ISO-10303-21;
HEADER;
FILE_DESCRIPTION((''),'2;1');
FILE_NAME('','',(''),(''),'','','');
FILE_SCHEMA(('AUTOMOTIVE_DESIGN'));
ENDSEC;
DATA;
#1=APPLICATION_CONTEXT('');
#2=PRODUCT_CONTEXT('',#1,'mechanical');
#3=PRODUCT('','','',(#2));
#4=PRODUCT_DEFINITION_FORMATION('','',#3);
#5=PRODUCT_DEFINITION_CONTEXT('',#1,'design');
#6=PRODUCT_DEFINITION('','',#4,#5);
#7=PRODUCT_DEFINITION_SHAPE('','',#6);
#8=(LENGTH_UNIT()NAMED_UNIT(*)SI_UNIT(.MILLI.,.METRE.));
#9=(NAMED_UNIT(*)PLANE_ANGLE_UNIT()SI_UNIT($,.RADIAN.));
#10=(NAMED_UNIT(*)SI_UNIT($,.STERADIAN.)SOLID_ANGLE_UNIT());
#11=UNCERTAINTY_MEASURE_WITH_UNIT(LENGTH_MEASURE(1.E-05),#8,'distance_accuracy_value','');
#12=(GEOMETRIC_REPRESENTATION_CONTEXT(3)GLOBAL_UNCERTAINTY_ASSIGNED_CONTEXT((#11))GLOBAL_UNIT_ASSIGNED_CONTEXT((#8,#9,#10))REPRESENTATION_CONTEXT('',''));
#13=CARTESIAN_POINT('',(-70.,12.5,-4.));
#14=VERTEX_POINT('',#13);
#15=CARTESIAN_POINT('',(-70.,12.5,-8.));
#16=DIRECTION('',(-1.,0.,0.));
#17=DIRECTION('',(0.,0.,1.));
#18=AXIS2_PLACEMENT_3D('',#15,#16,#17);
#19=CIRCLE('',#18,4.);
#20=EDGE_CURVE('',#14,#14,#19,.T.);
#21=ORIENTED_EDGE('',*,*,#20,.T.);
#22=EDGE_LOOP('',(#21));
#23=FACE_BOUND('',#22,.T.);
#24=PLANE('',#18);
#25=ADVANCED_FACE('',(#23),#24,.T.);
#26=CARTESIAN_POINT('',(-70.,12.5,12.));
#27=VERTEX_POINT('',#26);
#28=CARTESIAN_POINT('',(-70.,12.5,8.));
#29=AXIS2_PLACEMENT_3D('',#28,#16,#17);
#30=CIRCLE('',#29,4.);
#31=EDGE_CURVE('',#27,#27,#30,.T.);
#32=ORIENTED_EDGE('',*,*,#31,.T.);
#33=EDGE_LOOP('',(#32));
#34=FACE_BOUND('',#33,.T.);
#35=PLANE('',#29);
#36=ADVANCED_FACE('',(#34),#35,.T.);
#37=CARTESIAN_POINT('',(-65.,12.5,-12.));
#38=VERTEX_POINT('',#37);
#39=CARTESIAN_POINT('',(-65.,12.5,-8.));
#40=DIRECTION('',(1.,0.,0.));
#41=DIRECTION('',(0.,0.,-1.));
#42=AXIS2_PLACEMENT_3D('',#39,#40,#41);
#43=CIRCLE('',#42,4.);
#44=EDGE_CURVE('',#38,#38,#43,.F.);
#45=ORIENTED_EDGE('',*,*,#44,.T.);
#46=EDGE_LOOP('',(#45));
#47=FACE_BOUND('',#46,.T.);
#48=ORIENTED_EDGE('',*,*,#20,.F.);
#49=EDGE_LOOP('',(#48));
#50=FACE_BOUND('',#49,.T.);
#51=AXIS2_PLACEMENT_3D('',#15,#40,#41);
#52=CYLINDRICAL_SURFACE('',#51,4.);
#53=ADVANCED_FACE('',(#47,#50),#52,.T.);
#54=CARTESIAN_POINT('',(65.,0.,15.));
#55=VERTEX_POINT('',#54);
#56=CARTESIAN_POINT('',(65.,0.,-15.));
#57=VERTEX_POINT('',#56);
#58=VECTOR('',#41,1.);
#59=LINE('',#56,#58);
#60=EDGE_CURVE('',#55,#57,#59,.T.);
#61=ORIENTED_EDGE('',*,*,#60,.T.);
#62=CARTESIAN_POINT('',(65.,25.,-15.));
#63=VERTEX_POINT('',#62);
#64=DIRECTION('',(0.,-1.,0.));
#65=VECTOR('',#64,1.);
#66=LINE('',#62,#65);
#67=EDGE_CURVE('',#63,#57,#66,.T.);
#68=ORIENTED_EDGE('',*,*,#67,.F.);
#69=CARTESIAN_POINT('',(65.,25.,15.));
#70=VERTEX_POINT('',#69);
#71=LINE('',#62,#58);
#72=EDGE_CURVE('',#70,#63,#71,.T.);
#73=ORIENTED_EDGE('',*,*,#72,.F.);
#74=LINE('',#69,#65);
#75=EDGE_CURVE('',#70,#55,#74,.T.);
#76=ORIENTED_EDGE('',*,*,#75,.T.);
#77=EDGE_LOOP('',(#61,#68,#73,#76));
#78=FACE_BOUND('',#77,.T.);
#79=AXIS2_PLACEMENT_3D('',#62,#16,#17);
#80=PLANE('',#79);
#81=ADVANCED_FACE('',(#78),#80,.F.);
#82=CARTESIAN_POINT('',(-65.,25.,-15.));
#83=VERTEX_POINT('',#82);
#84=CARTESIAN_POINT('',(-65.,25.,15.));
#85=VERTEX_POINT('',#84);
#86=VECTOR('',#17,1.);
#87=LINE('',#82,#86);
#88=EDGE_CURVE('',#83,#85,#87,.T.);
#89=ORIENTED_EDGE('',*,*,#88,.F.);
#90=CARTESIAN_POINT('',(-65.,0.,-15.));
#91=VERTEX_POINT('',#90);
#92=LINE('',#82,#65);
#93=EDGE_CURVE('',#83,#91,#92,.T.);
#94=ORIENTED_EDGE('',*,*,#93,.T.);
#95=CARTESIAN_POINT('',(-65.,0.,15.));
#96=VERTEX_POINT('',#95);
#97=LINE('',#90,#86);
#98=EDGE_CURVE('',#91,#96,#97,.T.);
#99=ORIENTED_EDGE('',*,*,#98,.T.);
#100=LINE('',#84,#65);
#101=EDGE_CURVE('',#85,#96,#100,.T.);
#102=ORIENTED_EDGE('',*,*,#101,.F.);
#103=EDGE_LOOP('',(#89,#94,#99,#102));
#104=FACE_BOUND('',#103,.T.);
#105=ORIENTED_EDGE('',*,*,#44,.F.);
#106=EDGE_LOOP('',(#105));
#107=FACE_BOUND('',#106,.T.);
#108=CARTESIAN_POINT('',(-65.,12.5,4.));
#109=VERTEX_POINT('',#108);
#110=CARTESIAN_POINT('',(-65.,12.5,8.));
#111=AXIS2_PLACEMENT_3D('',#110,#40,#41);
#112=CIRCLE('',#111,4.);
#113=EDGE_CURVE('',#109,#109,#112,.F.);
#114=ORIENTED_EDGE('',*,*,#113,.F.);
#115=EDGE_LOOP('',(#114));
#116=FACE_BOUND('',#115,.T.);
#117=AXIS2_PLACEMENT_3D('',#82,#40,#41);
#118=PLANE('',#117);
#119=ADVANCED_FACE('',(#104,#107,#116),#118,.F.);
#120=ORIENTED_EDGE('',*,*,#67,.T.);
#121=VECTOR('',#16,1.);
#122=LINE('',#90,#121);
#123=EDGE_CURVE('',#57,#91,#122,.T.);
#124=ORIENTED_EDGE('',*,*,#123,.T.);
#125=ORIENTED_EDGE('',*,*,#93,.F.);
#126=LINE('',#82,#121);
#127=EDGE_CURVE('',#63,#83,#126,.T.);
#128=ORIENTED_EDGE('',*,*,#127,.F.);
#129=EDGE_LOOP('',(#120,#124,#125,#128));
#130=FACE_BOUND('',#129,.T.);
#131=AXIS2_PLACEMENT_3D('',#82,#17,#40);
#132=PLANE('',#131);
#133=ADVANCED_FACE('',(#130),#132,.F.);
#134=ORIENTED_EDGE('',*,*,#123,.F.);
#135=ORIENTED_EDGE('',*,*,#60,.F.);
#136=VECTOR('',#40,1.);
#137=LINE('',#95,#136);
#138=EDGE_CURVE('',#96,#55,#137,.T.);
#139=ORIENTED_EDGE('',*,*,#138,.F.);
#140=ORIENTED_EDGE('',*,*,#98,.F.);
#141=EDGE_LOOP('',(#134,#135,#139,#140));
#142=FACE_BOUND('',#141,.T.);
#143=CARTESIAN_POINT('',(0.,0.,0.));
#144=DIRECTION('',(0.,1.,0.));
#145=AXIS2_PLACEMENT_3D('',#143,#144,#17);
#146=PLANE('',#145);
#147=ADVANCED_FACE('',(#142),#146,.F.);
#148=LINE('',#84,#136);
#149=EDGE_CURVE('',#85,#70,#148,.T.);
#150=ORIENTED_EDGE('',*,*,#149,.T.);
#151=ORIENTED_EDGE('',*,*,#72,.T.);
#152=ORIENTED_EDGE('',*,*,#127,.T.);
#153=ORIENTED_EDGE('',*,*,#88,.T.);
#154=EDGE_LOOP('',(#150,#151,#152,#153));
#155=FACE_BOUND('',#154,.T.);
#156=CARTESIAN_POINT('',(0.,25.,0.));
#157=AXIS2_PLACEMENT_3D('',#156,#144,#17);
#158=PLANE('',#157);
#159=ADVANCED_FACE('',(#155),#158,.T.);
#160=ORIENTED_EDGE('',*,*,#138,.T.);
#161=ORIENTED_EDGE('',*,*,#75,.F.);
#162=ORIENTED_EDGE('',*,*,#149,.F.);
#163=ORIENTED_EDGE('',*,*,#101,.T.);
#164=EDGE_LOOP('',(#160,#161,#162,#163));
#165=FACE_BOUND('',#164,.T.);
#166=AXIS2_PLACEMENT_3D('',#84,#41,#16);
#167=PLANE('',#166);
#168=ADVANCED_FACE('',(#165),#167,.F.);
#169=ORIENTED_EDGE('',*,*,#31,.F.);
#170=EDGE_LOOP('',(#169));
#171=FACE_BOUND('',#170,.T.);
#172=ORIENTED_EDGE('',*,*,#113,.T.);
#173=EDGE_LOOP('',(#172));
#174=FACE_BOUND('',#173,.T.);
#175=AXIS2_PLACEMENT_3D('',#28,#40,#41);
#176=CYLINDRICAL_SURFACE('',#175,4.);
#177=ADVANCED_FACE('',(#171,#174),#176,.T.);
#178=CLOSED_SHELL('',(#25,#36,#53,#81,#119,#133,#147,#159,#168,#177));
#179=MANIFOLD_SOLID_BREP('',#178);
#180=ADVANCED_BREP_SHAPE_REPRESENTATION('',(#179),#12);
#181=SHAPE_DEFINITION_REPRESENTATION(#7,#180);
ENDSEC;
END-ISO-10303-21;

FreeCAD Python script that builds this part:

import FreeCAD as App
import Part
import Sketcher

V = App.Vector
Q = App.Units.Quantity


def add_polygon(sketch, points):
    """Adds a closed chain of lines whose ends are joined by coincident constraints."""
    first, n = sketch.GeometryCount, len(points)
    for a, b in zip(points, points[1:] + points[:1]):
        sketch.addGeometry(Part.LineSegment(App.Vector(*a, 0), App.Vector(*b, 0)), False)
    for i in range(n):
        sketch.addConstraint(Sketcher.Constraint("Coincident", first + i, 2, first + (i + 1) % n, 1))

doc = App.newDocument("Part")
body = doc.addObject("PartDesign::Body", "Body")

sketch1 = body.newObject("Sketcher::SketchObject", "Sketch")
sketch1.AttachmentSupport = (doc.getObject("XZ_Plane"), [""])
sketch1.MapMode = "FlatFace"
add_polygon(sketch1, [(-65, -15), (-65, 15), (65, 15), (65, -15)])
sketch1.addConstraint([
    Sketcher.Constraint("Vertical", 0),
    Sketcher.Constraint("Horizontal", 1),
    Sketcher.Constraint("Vertical", 2),
    Sketcher.Constraint("Horizontal", 3),
    Sketcher.Constraint("Symmetric", 0, 2, 2, 2, -1, 1),
    Sketcher.Constraint("DistanceX", 1, 1, 1, 2, Q("130 mm")),
    Sketcher.Constraint("DistanceY", 0, 1, 0, 2, Q("30 mm")),
])
pad1 = body.newObject("PartDesign::Pad", "Pad")
pad1.Profile = sketch1
pad1.Length = 25
pad1.Reversed = True

sketch2 = body.newObject("Sketcher::SketchObject", "Sketch001")
sketch2.AttachmentSupport = (doc.getObject("YZ_Plane"), [""])
sketch2.MapMode = "FlatFace"
sketch2.AttachmentOffset = App.Placement(V(0, 0, -65), App.Rotation())
sketch2.addGeometry([
    Part.Circle(V(12.5, -8, 0), V(0, 0, 1), 4),
    Part.Circle(V(12.5, 8, 0), V(0, 0, 1), 4),
], False)
sketch2.addConstraint([
    Sketcher.Constraint("Equal", 0, 1),
    Sketcher.Constraint("Symmetric", 0, 3, 1, 3, -1),
    Sketcher.Constraint("Diameter", 0, Q("8 mm")),
    Sketcher.Constraint("DistanceY", 0, 3, -1, 1, Q("8 mm")),
    Sketcher.Constraint("DistanceX", -1, 1, 0, 3, Q("12.5 mm")),
])
pad2 = body.newObject("PartDesign::Pad", "Pad001")
pad2.Profile = sketch2
pad2.Length = 5
pad2.Reversed = True

doc.recompute()
